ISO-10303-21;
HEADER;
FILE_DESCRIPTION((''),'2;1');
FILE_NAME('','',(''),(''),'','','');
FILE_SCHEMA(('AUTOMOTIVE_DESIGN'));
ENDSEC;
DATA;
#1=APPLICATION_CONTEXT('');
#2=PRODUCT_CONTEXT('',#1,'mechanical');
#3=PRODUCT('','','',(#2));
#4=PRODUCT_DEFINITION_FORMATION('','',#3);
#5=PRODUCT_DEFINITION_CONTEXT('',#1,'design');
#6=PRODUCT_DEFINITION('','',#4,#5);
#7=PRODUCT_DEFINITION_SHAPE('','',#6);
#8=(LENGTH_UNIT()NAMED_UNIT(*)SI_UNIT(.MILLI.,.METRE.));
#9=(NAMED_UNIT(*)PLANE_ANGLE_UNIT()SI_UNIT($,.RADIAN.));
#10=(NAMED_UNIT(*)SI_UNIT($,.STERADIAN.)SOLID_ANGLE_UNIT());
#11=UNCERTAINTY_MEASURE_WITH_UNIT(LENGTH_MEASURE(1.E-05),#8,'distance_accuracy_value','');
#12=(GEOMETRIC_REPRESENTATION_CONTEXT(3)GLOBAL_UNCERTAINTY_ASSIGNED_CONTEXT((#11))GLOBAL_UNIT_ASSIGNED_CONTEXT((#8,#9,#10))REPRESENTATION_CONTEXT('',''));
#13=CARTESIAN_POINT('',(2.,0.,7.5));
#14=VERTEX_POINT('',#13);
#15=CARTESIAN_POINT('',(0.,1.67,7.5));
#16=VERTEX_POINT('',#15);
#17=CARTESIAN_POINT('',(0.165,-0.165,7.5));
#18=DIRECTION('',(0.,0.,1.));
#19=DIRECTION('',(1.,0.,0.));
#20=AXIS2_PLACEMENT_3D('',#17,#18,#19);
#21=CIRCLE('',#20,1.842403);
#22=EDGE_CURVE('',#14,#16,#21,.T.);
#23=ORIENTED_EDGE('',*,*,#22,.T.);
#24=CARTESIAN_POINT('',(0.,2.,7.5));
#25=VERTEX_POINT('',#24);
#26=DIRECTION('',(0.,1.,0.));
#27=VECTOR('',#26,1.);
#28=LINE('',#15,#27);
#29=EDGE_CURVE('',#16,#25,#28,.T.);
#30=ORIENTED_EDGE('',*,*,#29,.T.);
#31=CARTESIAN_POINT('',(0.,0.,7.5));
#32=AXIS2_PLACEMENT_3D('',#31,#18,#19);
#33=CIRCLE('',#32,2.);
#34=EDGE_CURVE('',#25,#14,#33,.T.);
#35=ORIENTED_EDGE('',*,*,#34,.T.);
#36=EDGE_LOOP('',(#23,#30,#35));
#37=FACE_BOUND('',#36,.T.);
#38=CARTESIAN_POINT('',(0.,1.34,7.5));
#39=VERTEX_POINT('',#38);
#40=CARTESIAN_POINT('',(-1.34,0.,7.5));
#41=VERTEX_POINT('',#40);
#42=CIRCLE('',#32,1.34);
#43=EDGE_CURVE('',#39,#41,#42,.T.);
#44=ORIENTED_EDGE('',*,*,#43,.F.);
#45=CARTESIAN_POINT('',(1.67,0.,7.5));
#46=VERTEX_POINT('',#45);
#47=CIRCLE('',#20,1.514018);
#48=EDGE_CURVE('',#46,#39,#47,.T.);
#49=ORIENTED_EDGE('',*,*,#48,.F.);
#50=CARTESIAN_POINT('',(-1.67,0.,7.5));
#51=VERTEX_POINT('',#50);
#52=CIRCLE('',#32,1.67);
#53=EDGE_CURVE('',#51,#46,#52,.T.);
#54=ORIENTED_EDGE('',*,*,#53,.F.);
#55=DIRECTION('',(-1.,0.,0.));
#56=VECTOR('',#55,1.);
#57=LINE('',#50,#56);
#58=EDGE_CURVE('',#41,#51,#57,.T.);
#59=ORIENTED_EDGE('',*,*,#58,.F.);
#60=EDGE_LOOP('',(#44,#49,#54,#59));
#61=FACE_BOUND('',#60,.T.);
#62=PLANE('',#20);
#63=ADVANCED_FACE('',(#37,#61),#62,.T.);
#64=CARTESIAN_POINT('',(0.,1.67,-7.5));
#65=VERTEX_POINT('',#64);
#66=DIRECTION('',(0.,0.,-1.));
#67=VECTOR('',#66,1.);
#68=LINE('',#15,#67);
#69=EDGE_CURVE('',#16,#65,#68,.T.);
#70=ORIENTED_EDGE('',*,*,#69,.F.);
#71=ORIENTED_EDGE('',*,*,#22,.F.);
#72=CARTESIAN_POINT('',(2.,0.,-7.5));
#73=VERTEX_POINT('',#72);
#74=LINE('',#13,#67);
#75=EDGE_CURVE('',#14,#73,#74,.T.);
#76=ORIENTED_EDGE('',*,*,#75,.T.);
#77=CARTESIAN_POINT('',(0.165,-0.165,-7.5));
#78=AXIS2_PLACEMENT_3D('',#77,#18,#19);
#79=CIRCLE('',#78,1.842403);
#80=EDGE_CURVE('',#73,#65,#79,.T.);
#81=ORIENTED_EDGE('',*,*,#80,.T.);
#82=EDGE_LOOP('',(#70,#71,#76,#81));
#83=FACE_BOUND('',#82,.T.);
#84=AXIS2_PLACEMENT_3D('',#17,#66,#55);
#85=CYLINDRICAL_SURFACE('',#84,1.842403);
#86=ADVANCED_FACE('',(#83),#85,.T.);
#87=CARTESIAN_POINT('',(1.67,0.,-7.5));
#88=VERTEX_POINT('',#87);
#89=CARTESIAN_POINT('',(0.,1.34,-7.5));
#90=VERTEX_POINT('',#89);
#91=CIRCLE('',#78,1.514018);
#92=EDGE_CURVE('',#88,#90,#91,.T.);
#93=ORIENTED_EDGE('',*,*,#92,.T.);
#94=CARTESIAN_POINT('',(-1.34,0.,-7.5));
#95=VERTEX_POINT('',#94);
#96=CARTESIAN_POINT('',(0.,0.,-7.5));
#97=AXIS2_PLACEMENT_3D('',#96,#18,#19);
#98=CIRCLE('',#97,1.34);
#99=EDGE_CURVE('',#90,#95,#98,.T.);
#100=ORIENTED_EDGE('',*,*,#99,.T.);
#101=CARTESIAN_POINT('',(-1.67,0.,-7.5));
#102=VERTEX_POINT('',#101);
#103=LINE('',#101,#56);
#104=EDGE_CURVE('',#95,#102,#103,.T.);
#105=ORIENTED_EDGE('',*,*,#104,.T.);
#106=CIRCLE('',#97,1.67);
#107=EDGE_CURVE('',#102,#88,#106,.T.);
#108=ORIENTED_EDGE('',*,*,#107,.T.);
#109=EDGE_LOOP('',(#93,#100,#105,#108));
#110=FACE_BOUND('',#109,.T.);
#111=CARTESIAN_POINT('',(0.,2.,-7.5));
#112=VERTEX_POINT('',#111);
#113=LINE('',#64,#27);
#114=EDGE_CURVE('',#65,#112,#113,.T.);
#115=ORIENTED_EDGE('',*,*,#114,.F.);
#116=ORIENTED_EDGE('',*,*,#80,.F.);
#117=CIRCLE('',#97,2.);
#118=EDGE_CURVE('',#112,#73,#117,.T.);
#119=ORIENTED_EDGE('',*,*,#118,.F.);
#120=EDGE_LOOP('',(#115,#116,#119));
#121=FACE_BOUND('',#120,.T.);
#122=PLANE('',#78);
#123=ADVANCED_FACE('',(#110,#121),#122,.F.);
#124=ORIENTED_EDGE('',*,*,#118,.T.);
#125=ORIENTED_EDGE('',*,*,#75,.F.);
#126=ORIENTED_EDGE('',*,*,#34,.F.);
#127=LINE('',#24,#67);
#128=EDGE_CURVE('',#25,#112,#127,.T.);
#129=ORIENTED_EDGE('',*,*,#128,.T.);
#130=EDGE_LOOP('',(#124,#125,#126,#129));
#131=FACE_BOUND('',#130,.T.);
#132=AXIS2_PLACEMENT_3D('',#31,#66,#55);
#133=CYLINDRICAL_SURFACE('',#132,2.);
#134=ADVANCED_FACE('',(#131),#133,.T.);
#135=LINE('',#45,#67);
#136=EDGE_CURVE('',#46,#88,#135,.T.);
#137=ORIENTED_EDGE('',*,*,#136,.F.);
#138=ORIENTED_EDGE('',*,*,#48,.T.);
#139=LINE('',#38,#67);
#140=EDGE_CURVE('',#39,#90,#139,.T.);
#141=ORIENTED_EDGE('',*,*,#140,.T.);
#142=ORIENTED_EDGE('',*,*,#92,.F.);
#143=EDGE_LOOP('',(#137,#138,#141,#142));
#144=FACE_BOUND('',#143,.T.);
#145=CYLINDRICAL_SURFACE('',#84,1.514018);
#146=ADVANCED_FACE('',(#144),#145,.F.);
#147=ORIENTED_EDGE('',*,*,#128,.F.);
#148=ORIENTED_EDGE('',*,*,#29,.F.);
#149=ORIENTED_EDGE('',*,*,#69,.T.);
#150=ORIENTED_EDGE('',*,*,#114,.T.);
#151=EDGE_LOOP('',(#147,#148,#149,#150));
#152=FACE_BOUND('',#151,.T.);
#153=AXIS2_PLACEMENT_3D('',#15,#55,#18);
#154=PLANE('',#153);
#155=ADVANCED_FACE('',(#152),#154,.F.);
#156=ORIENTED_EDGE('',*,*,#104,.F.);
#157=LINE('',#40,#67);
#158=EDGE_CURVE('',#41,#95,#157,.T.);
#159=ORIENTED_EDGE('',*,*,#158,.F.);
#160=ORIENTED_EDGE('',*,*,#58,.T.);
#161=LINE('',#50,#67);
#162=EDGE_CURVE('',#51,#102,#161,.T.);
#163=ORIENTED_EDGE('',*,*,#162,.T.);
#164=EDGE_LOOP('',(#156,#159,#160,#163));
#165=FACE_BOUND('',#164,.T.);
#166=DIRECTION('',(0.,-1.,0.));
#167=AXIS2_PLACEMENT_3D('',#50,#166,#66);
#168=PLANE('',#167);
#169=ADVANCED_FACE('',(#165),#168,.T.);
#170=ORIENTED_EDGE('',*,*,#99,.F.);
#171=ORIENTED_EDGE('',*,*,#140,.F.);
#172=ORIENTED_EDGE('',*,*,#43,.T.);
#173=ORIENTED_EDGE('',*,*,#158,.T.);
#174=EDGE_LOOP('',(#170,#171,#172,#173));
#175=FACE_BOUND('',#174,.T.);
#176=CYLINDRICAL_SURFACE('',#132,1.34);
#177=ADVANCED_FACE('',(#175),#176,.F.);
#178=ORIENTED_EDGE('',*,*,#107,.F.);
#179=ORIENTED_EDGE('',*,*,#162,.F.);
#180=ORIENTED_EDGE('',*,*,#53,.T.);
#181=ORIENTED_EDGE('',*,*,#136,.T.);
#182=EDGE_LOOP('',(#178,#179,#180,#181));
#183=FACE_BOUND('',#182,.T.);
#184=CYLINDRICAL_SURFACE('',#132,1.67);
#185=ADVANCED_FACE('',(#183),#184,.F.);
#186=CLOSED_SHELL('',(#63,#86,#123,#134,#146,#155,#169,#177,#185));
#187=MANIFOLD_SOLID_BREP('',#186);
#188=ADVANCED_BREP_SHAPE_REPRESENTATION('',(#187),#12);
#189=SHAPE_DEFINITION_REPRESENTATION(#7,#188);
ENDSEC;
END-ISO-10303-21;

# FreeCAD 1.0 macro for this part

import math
import FreeCAD as App
import Part
import Sketcher
Q = App.Units.Quantity

doc = App.newDocument("Part")
body = doc.addObject("PartDesign::Body", "Body")

sketch1 = doc.addObject("Sketcher::SketchObject", "Sketch")
body.addObject(sketch1)
sketch1.AttachmentSupport = (doc.XY_Plane, [""])
sketch1.MapMode = "FlatFace"
sketch1.addGeometry(Part.LineSegment(App.Vector(0, 1.67, 0), App.Vector(0, 2, 0)), False)
sketch1.addGeometry(Part.ArcOfCircle(Part.Circle(App.Vector(0, 0, 0), App.Vector(0, 0, 1), 2), math.radians(90), math.radians(360)), False)
sketch1.addGeometry(Part.ArcOfCircle(Part.Circle(App.Vector(0.165, -0.165, 0), App.Vector(0, 0, 1), 1.842403), math.radians(5.138119), math.radians(95.138119)), False)
sketch1.addGeometry(Part.ArcOfCircle(Part.Circle(App.Vector(0, 0, 0), App.Vector(0, 0, 1), 1.67), math.radians(180), math.radians(360)), False)
sketch1.addGeometry(Part.LineSegment(App.Vector(-1.67, 0, 0), App.Vector(-1.34, 0, 0)), False)
sketch1.addGeometry(Part.ArcOfCircle(Part.Circle(App.Vector(0, 0, 0), App.Vector(0, 0, 1), 1.34), math.radians(90), math.radians(180)), False)
sketch1.addGeometry(Part.ArcOfCircle(Part.Circle(App.Vector(0.165, -0.165, 0), App.Vector(0, 0, 1), 1.514018), math.radians(6.256609), math.radians(96.256609)), False)
sketch1.addConstraint(Sketcher.Constraint("Coincident", 0, 2, 1, 1))
sketch1.addConstraint(Sketcher.Constraint("Coincident", 1, 2, 2, 1))
sketch1.addConstraint(Sketcher.Constraint("Coincident", 2, 2, 0, 1))
sketch1.addConstraint(Sketcher.Constraint("Coincident", 3, 1, 4, 1))
sketch1.addConstraint(Sketcher.Constraint("Coincident", 4, 2, 5, 2))
sketch1.addConstraint(Sketcher.Constraint("Coincident", 5, 1, 6, 2))
sketch1.addConstraint(Sketcher.Constraint("Coincident", 6, 1, 3, 2))
sketch1.addConstraint(Sketcher.Constraint("Vertical", 0))
sketch1.addConstraint(Sketcher.Constraint("Horizontal", 4))
sketch1.addConstraint(Sketcher.Constraint("Coincident", 1, 3, -1, 1))
sketch1.addConstraint(Sketcher.Constraint("Coincident", 3, 3, -1, 1))
sketch1.addConstraint(Sketcher.Constraint("Coincident", 5, 3, -1, 1))
sketch1.addConstraint(Sketcher.Constraint("Coincident", 6, 3, 2, 3))
sketch1.addConstraint(Sketcher.Constraint("PointOnObject", 0, 2, -2))
sketch1.addConstraint(Sketcher.Constraint("PointOnObject", 1, 2, -1))
sketch1.addConstraint(Sketcher.Constraint("PointOnObject", 3, 1, -1))
sketch1.addConstraint(Sketcher.Constraint("PointOnObject", 5, 1, -2))
sketch1.addConstraint(Sketcher.Constraint("PointOnObject", 6, 1, -1))
sketch1.addConstraint(Sketcher.Constraint("Equal", 4, 0))
sketch1.addConstraint(Sketcher.Constraint("Radius", 1, Q("2 mm")))
sketch1.addConstraint(Sketcher.Constraint("Radius", 3, Q("1.67 mm")))
sketch1.addConstraint(Sketcher.Constraint("Radius", 5, Q("1.34 mm")))
pad1 = doc.addObject("PartDesign::Pad", "Pad")
body.addObject(pad1)
pad1.Profile = sketch1
pad1.Length = 15
pad1.Midplane = True

doc.recompute()
